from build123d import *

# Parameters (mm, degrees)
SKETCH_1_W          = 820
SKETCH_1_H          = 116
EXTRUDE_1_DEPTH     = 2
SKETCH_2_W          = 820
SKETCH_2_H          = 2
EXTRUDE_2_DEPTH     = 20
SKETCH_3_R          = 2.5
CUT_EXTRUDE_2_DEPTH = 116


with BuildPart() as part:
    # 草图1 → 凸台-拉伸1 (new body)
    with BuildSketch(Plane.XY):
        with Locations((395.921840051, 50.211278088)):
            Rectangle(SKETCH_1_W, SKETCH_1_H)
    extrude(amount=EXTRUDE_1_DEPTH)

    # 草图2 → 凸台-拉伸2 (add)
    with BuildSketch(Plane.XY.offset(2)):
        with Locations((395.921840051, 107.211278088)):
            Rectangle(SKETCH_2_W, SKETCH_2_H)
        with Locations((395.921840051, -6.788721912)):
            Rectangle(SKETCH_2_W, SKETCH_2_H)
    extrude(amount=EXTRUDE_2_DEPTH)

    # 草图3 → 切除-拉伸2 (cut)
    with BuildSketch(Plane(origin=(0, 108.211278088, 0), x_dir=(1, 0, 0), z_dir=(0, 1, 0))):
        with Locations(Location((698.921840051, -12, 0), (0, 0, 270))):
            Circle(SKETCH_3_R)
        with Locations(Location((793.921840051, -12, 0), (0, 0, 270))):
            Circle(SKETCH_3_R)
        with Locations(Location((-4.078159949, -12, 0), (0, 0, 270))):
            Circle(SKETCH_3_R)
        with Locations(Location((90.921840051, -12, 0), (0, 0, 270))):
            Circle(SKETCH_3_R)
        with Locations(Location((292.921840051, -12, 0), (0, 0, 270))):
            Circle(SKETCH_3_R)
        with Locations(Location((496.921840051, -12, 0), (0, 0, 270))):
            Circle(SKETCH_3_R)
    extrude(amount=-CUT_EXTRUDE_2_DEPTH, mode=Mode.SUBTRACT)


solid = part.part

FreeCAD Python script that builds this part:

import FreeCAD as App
import Part
import Sketcher
Q = App.Units.Quantity

doc = App.newDocument("Part")
body = doc.addObject("PartDesign::Body", "Body")

sketch1 = doc.addObject("Sketcher::SketchObject", "Sketch")
body.addObject(sketch1)
sketch1.AttachmentSupport = (doc.XY_Plane, [""])
sketch1.MapMode = "FlatFace"
sketch1.addGeometry(Part.LineSegment(App.Vector(-14, 108, 0), App.Vector(-14, -8, 0)), False)
sketch1.addGeometry(Part.LineSegment(App.Vector(-14, -8, 0), App.Vector(806, -8, 0)), False)
sketch1.addGeometry(Part.LineSegment(App.Vector(806, -8, 0), App.Vector(806, 108, 0)), False)
sketch1.addGeometry(Part.LineSegment(App.Vector(806, 108, 0), App.Vector(-14, 108, 0)), False)
sketch1.addConstraint(Sketcher.Constraint("Coincident", 0, 2, 1, 1))
sketch1.addConstraint(Sketcher.Constraint("Coincident", 1, 2, 2, 1))
sketch1.addConstraint(Sketcher.Constraint("Coincident", 2, 2, 3, 1))
sketch1.addConstraint(Sketcher.Constraint("Coincident", 3, 2, 0, 1))
sketch1.addConstraint(Sketcher.Constraint("Vertical", 0))
sketch1.addConstraint(Sketcher.Constraint("Horizontal", 1))
sketch1.addConstraint(Sketcher.Constraint("Vertical", 2))
sketch1.addConstraint(Sketcher.Constraint("Horizontal", 3))
sketch1.addConstraint(Sketcher.Constraint("DistanceX", 1, 1, 1, 2, Q("820 mm")))
sketch1.addConstraint(Sketcher.Constraint("DistanceY", 0, 2, 0, 1, Q("116 mm")))
sketch1.addConstraint(Sketcher.Constraint("DistanceX", 0, 2, -1, 1, Q("14.07816 mm")))
sketch1.addConstraint(Sketcher.Constraint("DistanceY", 0, 2, -1, 1, Q("7.788722 mm")))
pad1 = doc.addObject("PartDesign::Pad", "Pad")
body.addObject(pad1)
pad1.Profile = sketch1
pad1.Length = 2

sketch2 = doc.addObject("Sketcher::SketchObject", "Sketch001")
body.addObject(sketch2)
sketch2.AttachmentSupport = (doc.XY_Plane, [""])
sketch2.MapMode = "FlatFace"
sketch2.AttachmentOffset = App.Placement(App.Vector(0, 0, 2), App.Rotation())
sketch2.addGeometry(Part.LineSegment(App.Vector(-14.1, 108.2, 0), App.Vector(-14.1, 106.2, 0)), False)
sketch2.addGeometry(Part.LineSegment(App.Vector(-14.1, 106.2, 0), App.Vector(805.9, 106.2, 0)), False)
sketch2.addGeometry(Part.LineSegment(App.Vector(805.9, 106.2, 0), App.Vector(805.9, 108.2, 0)), False)
sketch2.addGeometry(Part.LineSegment(App.Vector(805.9, 108.2, 0), App.Vector(-14.1, 108.2, 0)), False)
sketch2.addGeometry(Part.LineSegment(App.Vector(-14.1, -5.8, 0), App.Vector(-14.1, -7.8, 0)), False)
sketch2.addGeometry(Part.LineSegment(App.Vector(-14.1, -7.8, 0), App.Vector(805.9, -7.8, 0)), False)
sketch2.addGeometry(Part.LineSegment(App.Vector(805.9, -7.8, 0), App.Vector(805.9, -5.8, 0)), False)
sketch2.addGeometry(Part.LineSegment(App.Vector(805.9, -5.8, 0), App.Vector(-14.1, -5.8, 0)), False)
sketch2.addConstraint(Sketcher.Constraint("Coincident", 0, 2, 1, 1))
sketch2.addConstraint(Sketcher.Constraint("Coincident", 1, 2, 2, 1))
sketch2.addConstraint(Sketcher.Constraint("Coincident", 2, 2, 3, 1))
sketch2.addConstraint(Sketcher.Constraint("Coincident", 3, 2, 0, 1))
sketch2.addConstraint(Sketcher.Constraint("Coincident", 4, 2, 5, 1))
sketch2.addConstraint(Sketcher.Constraint("Coincident", 5, 2, 6, 1))
sketch2.addConstraint(Sketcher.Constraint("Coincident", 6, 2, 7, 1))
sketch2.addConstraint(Sketcher.Constraint("Coincident", 7, 2, 4, 1))
sketch2.addConstraint(Sketcher.Constraint("Vertical", 0))
sketch2.addConstraint(Sketcher.Constraint("Horizontal", 1))
sketch2.addConstraint(Sketcher.Constraint("Vertical", 2))
sketch2.addConstraint(Sketcher.Constraint("Horizontal", 3))
sketch2.addConstraint(Sketcher.Constraint("Vertical", 4))
sketch2.addConstraint(Sketcher.Constraint("Horizontal", 5))
sketch2.addConstraint(Sketcher.Constraint("Vertical", 6))
sketch2.addConstraint(Sketcher.Constraint("Horizontal", 7))
sketch2.addConstraint(Sketcher.Constraint("Vertical", 3, 2, 4, 2))
sketch2.addConstraint(Sketcher.Constraint("Vertical", 2, 2, 5, 2))
sketch2.addConstraint(Sketcher.Constraint("Equal", 2, 4))
sketch2.addConstraint(Sketcher.Constraint("DistanceX", 1, 1, 1, 2, Q("820 mm")))
sketch2.addConstraint(Sketcher.Constraint("DistanceY", 0, 2, 0, 1, Q("2 mm")))
sketch2.addConstraint(Sketcher.Constraint("DistanceY", 4, 2, 0, 2, Q("114 mm")))
sketch2.addConstraint(Sketcher.Constraint("DistanceX", 0, 2, -1, 1, Q("14.07816 mm")))
sketch2.addConstraint(Sketcher.Constraint("DistanceY", -1, 1, 0, 2, Q("106.211278 mm")))
pad2 = doc.addObject("PartDesign::Pad", "Pad001")
body.addObject(pad2)
pad2.Profile = sketch2
pad2.Length = 20

sketch3 = doc.addObject("Sketcher::SketchObject", "Sketch002")
body.addObject(sketch3)
sketch3.AttachmentSupport = (doc.XZ_Plane, [""])
sketch3.MapMode = "FlatFace"
sketch3.AttachmentOffset = App.Placement(App.Vector(0, 0, -108.211278), App.Rotation())
sketch3.addGeometry(Part.Circle(App.Vector(698.9, 12, 0), App.Vector(0, 0, 1), 2.5), False)
sketch3.addGeometry(Part.Circle(App.Vector(793.9, 12, 0), App.Vector(0, 0, 1), 2.5), False)
sketch3.addGeometry(Part.Circle(App.Vector(-4.1, 12, 0), App.Vector(0, 0, 1), 2.5), False)
sketch3.addGeometry(Part.Circle(App.Vector(90.9, 12, 0), App.Vector(0, 0, 1), 2.5), False)
sketch3.addGeometry(Part.Circle(App.Vector(292.9, 12, 0), App.Vector(0, 0, 1), 2.5), False)
sketch3.addGeometry(Part.Circle(App.Vector(496.9, 12, 0), App.Vector(0, 0, 1), 2.5), False)
sketch3.addConstraint(Sketcher.Constraint("Equal", 0, 1))
sketch3.addConstraint(Sketcher.Constraint("Equal", 1, 2))
sketch3.addConstraint(Sketcher.Constraint("Equal", 2, 3))
sketch3.addConstraint(Sketcher.Constraint("Equal", 3, 4))
sketch3.addConstraint(Sketcher.Constraint("Equal", 4, 5))
sketch3.addConstraint(Sketcher.Constraint("Horizontal", 0, 3, 1, 3))
sketch3.addConstraint(Sketcher.Constraint("Horizontal", 1, 3, 2, 3))
sketch3.addConstraint(Sketcher.Constraint("Horizontal", 2, 3, 3, 3))
sketch3.addConstraint(Sketcher.Constraint("Horizontal", 3, 3, 4, 3))
sketch3.addConstraint(Sketcher.Constraint("Horizontal", 4, 3, 5, 3))
sketch3.addConstraint(Sketcher.Constraint("Diameter", 0, Q("5 mm")))
sketch3.addConstraint(Sketcher.Constraint("DistanceY", -1, 1, 0, 3, Q("12 mm")))
sketch3.addConstraint(Sketcher.Constraint("DistanceX", 0, 3, 1, 3, Q("95 mm")))
sketch3.addConstraint(Sketcher.Constraint("DistanceX", 2, 3, 0, 3, Q("703 mm")))
sketch3.addConstraint(Sketcher.Constraint("DistanceX", 2, 3, 3, 3, Q("95 mm")))
sketch3.addConstraint(Sketcher.Constraint("DistanceX", 3, 3, 4, 3, Q("202 mm")))
sketch3.addConstraint(Sketcher.Constraint("DistanceX", 5, 3, 0, 3, Q("202 mm")))
sketch3.addConstraint(Sketcher.Constraint("DistanceX", -1, 1, 0, 3, Q("698.92184 mm")))
pocket1 = doc.addObject("PartDesign::Pocket", "Pocket")
body.addObject(pocket1)
pocket1.Profile = sketch3
pocket1.Length = 116
pocket1.Reversed = True

doc.recompute()
